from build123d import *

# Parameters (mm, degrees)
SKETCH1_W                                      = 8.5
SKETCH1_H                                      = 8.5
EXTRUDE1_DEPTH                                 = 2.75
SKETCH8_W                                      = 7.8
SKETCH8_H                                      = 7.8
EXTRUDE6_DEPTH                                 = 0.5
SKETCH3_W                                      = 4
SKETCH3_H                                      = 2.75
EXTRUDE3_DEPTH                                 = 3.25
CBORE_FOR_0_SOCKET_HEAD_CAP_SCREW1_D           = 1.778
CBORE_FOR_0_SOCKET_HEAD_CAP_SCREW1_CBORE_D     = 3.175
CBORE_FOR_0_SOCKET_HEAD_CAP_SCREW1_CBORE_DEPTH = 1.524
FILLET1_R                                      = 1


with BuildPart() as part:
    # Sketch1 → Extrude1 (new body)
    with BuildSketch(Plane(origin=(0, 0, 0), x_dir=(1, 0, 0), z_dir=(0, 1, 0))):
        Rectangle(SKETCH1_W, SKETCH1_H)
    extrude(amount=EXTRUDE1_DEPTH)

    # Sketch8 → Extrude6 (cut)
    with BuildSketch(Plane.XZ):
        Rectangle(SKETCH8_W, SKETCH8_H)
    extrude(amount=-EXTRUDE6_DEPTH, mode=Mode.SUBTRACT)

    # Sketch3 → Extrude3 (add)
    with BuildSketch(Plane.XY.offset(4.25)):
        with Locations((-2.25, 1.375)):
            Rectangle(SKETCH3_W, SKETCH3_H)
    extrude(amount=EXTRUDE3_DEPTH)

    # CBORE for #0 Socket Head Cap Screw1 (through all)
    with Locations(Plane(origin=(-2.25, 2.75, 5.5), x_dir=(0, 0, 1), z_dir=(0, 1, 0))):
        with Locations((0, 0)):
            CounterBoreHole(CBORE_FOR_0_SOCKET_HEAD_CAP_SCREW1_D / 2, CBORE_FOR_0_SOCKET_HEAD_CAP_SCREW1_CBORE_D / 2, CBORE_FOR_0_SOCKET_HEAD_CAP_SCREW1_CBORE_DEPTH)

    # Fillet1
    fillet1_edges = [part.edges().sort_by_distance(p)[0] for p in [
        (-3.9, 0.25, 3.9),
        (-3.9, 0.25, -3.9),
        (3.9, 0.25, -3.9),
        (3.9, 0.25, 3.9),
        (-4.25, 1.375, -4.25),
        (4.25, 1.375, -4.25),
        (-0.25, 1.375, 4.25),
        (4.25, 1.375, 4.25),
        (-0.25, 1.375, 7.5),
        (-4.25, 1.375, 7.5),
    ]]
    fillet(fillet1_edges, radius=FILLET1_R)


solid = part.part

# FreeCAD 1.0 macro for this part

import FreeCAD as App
import Part
import Sketcher
Q = App.Units.Quantity


def edges_at(feature, points):
    """Names of the edges that pass closest to the given points."""
    edges = feature.Shape.Edges
    near = lambda p: min(range(len(edges)), key=lambda i: edges[i].distToShape(Part.Vertex(*p))[0])
    return sorted({f"Edge{near(p) + 1}" for p in points})


def add_polygon(sketch, points):
    """Adds a closed chain of lines whose ends are joined by coincident constraints."""
    first, n = sketch.GeometryCount, len(points)
    for a, b in zip(points, points[1:] + points[:1]):
        sketch.addGeometry(Part.LineSegment(App.Vector(*a, 0), App.Vector(*b, 0)), False)
    for i in range(n):
        sketch.addConstraint(Sketcher.Constraint("Coincident", first + i, 2, first + (i + 1) % n, 1))

doc = App.newDocument("Part")
params = doc.addObject("Spreadsheet::Sheet", "Params")
for row, (alias, value) in enumerate([
    ("sketch1_width", "8.5 mm"),
    ("pad1_length", "2.75 mm"),
    ("sketch2_width", "7.8 mm"),
    ("pocket1_length", "0.5 mm"),
    ("sketch3_width", "4 mm"),
    ("sketch3_height", "2.75 mm"),
    ("pad2_length", "3.25 mm"),
    ("hole_diameter", "1.778 mm"),
    ("hole_cbore_diameter", "3.175 mm"),
    ("hole_cbore_depth", "1.524 mm"),
    ("fillet_radius", "1 mm"),
], start=1):
    params.set(f"A{row}", alias)
    params.set(f"B{row}", "=" + value)
    params.setAlias(f"B{row}", alias)

body = doc.addObject("PartDesign::Body", "Body")

sketch1 = body.newObject("Sketcher::SketchObject", "Sketch")
sketch1.AttachmentSupport = (doc.getObject("XZ_Plane"), [""])
sketch1.MapMode = "FlatFace"
add_polygon(sketch1, [(-4.25, -4.25), (-4.25, 4.25), (4.25, 4.25), (4.25, -4.25)])
sketch1.addConstraint(Sketcher.Constraint("Vertical", 0))
sketch1.addConstraint(Sketcher.Constraint("Horizontal", 1))
sketch1.addConstraint(Sketcher.Constraint("Vertical", 2))
sketch1.addConstraint(Sketcher.Constraint("Horizontal", 3))
sketch1.addConstraint(Sketcher.Constraint("Symmetric", 0, 2, 2, 2, -1, 1))
sketch1.addConstraint(Sketcher.Constraint("Equal", 3, 0))
sketch1.addConstraint(Sketcher.Constraint("DistanceX", 1, 1, 1, 2, Q("8.5 mm")))
sketch1.setExpression("Constraints[10]", "Params.sketch1_width")
pad1 = body.newObject("PartDesign::Pad", "Pad")
pad1.Profile = sketch1
pad1.setExpression("Length", "Params.pad1_length")
pad1.Reversed = True

sketch2 = body.newObject("Sketcher::SketchObject", "Sketch001")
sketch2.AttachmentSupport = (doc.getObject("XZ_Plane"), [""])
sketch2.MapMode = "FlatFace"
add_polygon(sketch2, [(-3.9, 3.9), (-3.9, -3.9), (3.9, -3.9), (3.9, 3.9)])
sketch2.addConstraint(Sketcher.Constraint("Vertical", 0))
sketch2.addConstraint(Sketcher.Constraint("Horizontal", 1))
sketch2.addConstraint(Sketcher.Constraint("Vertical", 2))
sketch2.addConstraint(Sketcher.Constraint("Horizontal", 3))
sketch2.addConstraint(Sketcher.Constraint("Symmetric", 0, 2, 2, 2, -1, 1))
sketch2.addConstraint(Sketcher.Constraint("Equal", 3, 0))
sketch2.addConstraint(Sketcher.Constraint("DistanceX", 1, 1, 1, 2, Q("7.8 mm")))
sketch2.setExpression("Constraints[10]", "Params.sketch2_width")
pocket1 = body.newObject("PartDesign::Pocket", "Pocket")
pocket1.Profile = sketch2
pocket1.setExpression("Length", "Params.pocket1_length")

sketch3 = body.newObject("Sketcher::SketchObject", "Sketch002")
sketch3.AttachmentSupport = (doc.getObject("XY_Plane"), [""])
sketch3.MapMode = "FlatFace"
sketch3.AttachmentOffset = App.Placement(App.Vector(0, 0, 4.25), App.Rotation())
add_polygon(sketch3, [(-4.25, 2.75), (-4.25, 0), (-0.25, 0), (-0.25, 2.75)])
sketch3.addConstraint(Sketcher.Constraint("Vertical", 0))
sketch3.addConstraint(Sketcher.Constraint("Horizontal", 1))
sketch3.addConstraint(Sketcher.Constraint("Vertical", 2))
sketch3.addConstraint(Sketcher.Constraint("Horizontal", 3))
sketch3.addConstraint(Sketcher.Constraint("PointOnObject", 0, 2, -1))
sketch3.addConstraint(Sketcher.Constraint("DistanceX", 1, 1, 1, 2, Q("4 mm")))
sketch3.addConstraint(Sketcher.Constraint("DistanceY", 0, 2, 0, 1, Q("2.75 mm")))
sketch3.addConstraint(Sketcher.Constraint("DistanceX", 0, 2, -1, 1, Q("4.25 mm")))
sketch3.setExpression("Constraints[9]", "Params.sketch3_width")
sketch3.setExpression("Constraints[10]", "Params.sketch3_height")
pad2 = body.newObject("PartDesign::Pad", "Pad001")
pad2.Profile = sketch3
pad2.setExpression("Length", "Params.pad2_length")

sketch4 = body.newObject("Sketcher::SketchObject", "Sketch003")
sketch4.AttachmentSupport = (doc.getObject("XZ_Plane"), [""])
sketch4.MapMode = "FlatFace"
sketch4.AttachmentOffset = App.Placement(App.Vector(0, 0, -2.75), App.Rotation())
sketch4.addGeometry(Part.Circle(App.Vector(-2.25, 5.5, 0), App.Vector(0, 0, 1), 0.889), False)
sketch4.addConstraint(Sketcher.Constraint("Diameter", 0, Q("1.778 mm")))
sketch4.addConstraint(Sketcher.Constraint("DistanceY", -1, 1, 0, 3, Q("5.5 mm")))
sketch4.addConstraint(Sketcher.Constraint("DistanceX", 0, 3, -1, 1, Q("2.25 mm")))
doc.recompute()
hole = body.newObject("PartDesign::Hole", "Hole")
hole.Profile = sketch4
hole.ThreadType = "None"
hole.setExpression("Diameter", "Params.hole_diameter")
hole.DepthType = "ThroughAll"
hole.HoleCutType = "Counterbore"
hole.setExpression("HoleCutDiameter", "Params.hole_cbore_diameter")
hole.setExpression("HoleCutDepth", "Params.hole_cbore_depth")
hole.Reversed = True
doc.recompute()

fillet = body.newObject("PartDesign::Fillet", "Fillet")
fillet.Base = (hole, edges_at(hole, [
    (-3.9, 0.25, 3.9),
    (-3.9, 0.25, -3.9),
    (3.9, 0.25, -3.9),
    (3.9, 0.25, 3.9),
    (-4.25, 1.375, -4.25),
    (4.25, 1.375, -4.25),
    (-0.25, 1.375, 4.25),
    (4.25, 1.375, 4.25),
    (-0.25, 1.375, 7.5),
    (-4.25, 1.375, 7.5),
]))
fillet.setExpression("Radius", "Params.fillet_radius")

doc.recompute()
